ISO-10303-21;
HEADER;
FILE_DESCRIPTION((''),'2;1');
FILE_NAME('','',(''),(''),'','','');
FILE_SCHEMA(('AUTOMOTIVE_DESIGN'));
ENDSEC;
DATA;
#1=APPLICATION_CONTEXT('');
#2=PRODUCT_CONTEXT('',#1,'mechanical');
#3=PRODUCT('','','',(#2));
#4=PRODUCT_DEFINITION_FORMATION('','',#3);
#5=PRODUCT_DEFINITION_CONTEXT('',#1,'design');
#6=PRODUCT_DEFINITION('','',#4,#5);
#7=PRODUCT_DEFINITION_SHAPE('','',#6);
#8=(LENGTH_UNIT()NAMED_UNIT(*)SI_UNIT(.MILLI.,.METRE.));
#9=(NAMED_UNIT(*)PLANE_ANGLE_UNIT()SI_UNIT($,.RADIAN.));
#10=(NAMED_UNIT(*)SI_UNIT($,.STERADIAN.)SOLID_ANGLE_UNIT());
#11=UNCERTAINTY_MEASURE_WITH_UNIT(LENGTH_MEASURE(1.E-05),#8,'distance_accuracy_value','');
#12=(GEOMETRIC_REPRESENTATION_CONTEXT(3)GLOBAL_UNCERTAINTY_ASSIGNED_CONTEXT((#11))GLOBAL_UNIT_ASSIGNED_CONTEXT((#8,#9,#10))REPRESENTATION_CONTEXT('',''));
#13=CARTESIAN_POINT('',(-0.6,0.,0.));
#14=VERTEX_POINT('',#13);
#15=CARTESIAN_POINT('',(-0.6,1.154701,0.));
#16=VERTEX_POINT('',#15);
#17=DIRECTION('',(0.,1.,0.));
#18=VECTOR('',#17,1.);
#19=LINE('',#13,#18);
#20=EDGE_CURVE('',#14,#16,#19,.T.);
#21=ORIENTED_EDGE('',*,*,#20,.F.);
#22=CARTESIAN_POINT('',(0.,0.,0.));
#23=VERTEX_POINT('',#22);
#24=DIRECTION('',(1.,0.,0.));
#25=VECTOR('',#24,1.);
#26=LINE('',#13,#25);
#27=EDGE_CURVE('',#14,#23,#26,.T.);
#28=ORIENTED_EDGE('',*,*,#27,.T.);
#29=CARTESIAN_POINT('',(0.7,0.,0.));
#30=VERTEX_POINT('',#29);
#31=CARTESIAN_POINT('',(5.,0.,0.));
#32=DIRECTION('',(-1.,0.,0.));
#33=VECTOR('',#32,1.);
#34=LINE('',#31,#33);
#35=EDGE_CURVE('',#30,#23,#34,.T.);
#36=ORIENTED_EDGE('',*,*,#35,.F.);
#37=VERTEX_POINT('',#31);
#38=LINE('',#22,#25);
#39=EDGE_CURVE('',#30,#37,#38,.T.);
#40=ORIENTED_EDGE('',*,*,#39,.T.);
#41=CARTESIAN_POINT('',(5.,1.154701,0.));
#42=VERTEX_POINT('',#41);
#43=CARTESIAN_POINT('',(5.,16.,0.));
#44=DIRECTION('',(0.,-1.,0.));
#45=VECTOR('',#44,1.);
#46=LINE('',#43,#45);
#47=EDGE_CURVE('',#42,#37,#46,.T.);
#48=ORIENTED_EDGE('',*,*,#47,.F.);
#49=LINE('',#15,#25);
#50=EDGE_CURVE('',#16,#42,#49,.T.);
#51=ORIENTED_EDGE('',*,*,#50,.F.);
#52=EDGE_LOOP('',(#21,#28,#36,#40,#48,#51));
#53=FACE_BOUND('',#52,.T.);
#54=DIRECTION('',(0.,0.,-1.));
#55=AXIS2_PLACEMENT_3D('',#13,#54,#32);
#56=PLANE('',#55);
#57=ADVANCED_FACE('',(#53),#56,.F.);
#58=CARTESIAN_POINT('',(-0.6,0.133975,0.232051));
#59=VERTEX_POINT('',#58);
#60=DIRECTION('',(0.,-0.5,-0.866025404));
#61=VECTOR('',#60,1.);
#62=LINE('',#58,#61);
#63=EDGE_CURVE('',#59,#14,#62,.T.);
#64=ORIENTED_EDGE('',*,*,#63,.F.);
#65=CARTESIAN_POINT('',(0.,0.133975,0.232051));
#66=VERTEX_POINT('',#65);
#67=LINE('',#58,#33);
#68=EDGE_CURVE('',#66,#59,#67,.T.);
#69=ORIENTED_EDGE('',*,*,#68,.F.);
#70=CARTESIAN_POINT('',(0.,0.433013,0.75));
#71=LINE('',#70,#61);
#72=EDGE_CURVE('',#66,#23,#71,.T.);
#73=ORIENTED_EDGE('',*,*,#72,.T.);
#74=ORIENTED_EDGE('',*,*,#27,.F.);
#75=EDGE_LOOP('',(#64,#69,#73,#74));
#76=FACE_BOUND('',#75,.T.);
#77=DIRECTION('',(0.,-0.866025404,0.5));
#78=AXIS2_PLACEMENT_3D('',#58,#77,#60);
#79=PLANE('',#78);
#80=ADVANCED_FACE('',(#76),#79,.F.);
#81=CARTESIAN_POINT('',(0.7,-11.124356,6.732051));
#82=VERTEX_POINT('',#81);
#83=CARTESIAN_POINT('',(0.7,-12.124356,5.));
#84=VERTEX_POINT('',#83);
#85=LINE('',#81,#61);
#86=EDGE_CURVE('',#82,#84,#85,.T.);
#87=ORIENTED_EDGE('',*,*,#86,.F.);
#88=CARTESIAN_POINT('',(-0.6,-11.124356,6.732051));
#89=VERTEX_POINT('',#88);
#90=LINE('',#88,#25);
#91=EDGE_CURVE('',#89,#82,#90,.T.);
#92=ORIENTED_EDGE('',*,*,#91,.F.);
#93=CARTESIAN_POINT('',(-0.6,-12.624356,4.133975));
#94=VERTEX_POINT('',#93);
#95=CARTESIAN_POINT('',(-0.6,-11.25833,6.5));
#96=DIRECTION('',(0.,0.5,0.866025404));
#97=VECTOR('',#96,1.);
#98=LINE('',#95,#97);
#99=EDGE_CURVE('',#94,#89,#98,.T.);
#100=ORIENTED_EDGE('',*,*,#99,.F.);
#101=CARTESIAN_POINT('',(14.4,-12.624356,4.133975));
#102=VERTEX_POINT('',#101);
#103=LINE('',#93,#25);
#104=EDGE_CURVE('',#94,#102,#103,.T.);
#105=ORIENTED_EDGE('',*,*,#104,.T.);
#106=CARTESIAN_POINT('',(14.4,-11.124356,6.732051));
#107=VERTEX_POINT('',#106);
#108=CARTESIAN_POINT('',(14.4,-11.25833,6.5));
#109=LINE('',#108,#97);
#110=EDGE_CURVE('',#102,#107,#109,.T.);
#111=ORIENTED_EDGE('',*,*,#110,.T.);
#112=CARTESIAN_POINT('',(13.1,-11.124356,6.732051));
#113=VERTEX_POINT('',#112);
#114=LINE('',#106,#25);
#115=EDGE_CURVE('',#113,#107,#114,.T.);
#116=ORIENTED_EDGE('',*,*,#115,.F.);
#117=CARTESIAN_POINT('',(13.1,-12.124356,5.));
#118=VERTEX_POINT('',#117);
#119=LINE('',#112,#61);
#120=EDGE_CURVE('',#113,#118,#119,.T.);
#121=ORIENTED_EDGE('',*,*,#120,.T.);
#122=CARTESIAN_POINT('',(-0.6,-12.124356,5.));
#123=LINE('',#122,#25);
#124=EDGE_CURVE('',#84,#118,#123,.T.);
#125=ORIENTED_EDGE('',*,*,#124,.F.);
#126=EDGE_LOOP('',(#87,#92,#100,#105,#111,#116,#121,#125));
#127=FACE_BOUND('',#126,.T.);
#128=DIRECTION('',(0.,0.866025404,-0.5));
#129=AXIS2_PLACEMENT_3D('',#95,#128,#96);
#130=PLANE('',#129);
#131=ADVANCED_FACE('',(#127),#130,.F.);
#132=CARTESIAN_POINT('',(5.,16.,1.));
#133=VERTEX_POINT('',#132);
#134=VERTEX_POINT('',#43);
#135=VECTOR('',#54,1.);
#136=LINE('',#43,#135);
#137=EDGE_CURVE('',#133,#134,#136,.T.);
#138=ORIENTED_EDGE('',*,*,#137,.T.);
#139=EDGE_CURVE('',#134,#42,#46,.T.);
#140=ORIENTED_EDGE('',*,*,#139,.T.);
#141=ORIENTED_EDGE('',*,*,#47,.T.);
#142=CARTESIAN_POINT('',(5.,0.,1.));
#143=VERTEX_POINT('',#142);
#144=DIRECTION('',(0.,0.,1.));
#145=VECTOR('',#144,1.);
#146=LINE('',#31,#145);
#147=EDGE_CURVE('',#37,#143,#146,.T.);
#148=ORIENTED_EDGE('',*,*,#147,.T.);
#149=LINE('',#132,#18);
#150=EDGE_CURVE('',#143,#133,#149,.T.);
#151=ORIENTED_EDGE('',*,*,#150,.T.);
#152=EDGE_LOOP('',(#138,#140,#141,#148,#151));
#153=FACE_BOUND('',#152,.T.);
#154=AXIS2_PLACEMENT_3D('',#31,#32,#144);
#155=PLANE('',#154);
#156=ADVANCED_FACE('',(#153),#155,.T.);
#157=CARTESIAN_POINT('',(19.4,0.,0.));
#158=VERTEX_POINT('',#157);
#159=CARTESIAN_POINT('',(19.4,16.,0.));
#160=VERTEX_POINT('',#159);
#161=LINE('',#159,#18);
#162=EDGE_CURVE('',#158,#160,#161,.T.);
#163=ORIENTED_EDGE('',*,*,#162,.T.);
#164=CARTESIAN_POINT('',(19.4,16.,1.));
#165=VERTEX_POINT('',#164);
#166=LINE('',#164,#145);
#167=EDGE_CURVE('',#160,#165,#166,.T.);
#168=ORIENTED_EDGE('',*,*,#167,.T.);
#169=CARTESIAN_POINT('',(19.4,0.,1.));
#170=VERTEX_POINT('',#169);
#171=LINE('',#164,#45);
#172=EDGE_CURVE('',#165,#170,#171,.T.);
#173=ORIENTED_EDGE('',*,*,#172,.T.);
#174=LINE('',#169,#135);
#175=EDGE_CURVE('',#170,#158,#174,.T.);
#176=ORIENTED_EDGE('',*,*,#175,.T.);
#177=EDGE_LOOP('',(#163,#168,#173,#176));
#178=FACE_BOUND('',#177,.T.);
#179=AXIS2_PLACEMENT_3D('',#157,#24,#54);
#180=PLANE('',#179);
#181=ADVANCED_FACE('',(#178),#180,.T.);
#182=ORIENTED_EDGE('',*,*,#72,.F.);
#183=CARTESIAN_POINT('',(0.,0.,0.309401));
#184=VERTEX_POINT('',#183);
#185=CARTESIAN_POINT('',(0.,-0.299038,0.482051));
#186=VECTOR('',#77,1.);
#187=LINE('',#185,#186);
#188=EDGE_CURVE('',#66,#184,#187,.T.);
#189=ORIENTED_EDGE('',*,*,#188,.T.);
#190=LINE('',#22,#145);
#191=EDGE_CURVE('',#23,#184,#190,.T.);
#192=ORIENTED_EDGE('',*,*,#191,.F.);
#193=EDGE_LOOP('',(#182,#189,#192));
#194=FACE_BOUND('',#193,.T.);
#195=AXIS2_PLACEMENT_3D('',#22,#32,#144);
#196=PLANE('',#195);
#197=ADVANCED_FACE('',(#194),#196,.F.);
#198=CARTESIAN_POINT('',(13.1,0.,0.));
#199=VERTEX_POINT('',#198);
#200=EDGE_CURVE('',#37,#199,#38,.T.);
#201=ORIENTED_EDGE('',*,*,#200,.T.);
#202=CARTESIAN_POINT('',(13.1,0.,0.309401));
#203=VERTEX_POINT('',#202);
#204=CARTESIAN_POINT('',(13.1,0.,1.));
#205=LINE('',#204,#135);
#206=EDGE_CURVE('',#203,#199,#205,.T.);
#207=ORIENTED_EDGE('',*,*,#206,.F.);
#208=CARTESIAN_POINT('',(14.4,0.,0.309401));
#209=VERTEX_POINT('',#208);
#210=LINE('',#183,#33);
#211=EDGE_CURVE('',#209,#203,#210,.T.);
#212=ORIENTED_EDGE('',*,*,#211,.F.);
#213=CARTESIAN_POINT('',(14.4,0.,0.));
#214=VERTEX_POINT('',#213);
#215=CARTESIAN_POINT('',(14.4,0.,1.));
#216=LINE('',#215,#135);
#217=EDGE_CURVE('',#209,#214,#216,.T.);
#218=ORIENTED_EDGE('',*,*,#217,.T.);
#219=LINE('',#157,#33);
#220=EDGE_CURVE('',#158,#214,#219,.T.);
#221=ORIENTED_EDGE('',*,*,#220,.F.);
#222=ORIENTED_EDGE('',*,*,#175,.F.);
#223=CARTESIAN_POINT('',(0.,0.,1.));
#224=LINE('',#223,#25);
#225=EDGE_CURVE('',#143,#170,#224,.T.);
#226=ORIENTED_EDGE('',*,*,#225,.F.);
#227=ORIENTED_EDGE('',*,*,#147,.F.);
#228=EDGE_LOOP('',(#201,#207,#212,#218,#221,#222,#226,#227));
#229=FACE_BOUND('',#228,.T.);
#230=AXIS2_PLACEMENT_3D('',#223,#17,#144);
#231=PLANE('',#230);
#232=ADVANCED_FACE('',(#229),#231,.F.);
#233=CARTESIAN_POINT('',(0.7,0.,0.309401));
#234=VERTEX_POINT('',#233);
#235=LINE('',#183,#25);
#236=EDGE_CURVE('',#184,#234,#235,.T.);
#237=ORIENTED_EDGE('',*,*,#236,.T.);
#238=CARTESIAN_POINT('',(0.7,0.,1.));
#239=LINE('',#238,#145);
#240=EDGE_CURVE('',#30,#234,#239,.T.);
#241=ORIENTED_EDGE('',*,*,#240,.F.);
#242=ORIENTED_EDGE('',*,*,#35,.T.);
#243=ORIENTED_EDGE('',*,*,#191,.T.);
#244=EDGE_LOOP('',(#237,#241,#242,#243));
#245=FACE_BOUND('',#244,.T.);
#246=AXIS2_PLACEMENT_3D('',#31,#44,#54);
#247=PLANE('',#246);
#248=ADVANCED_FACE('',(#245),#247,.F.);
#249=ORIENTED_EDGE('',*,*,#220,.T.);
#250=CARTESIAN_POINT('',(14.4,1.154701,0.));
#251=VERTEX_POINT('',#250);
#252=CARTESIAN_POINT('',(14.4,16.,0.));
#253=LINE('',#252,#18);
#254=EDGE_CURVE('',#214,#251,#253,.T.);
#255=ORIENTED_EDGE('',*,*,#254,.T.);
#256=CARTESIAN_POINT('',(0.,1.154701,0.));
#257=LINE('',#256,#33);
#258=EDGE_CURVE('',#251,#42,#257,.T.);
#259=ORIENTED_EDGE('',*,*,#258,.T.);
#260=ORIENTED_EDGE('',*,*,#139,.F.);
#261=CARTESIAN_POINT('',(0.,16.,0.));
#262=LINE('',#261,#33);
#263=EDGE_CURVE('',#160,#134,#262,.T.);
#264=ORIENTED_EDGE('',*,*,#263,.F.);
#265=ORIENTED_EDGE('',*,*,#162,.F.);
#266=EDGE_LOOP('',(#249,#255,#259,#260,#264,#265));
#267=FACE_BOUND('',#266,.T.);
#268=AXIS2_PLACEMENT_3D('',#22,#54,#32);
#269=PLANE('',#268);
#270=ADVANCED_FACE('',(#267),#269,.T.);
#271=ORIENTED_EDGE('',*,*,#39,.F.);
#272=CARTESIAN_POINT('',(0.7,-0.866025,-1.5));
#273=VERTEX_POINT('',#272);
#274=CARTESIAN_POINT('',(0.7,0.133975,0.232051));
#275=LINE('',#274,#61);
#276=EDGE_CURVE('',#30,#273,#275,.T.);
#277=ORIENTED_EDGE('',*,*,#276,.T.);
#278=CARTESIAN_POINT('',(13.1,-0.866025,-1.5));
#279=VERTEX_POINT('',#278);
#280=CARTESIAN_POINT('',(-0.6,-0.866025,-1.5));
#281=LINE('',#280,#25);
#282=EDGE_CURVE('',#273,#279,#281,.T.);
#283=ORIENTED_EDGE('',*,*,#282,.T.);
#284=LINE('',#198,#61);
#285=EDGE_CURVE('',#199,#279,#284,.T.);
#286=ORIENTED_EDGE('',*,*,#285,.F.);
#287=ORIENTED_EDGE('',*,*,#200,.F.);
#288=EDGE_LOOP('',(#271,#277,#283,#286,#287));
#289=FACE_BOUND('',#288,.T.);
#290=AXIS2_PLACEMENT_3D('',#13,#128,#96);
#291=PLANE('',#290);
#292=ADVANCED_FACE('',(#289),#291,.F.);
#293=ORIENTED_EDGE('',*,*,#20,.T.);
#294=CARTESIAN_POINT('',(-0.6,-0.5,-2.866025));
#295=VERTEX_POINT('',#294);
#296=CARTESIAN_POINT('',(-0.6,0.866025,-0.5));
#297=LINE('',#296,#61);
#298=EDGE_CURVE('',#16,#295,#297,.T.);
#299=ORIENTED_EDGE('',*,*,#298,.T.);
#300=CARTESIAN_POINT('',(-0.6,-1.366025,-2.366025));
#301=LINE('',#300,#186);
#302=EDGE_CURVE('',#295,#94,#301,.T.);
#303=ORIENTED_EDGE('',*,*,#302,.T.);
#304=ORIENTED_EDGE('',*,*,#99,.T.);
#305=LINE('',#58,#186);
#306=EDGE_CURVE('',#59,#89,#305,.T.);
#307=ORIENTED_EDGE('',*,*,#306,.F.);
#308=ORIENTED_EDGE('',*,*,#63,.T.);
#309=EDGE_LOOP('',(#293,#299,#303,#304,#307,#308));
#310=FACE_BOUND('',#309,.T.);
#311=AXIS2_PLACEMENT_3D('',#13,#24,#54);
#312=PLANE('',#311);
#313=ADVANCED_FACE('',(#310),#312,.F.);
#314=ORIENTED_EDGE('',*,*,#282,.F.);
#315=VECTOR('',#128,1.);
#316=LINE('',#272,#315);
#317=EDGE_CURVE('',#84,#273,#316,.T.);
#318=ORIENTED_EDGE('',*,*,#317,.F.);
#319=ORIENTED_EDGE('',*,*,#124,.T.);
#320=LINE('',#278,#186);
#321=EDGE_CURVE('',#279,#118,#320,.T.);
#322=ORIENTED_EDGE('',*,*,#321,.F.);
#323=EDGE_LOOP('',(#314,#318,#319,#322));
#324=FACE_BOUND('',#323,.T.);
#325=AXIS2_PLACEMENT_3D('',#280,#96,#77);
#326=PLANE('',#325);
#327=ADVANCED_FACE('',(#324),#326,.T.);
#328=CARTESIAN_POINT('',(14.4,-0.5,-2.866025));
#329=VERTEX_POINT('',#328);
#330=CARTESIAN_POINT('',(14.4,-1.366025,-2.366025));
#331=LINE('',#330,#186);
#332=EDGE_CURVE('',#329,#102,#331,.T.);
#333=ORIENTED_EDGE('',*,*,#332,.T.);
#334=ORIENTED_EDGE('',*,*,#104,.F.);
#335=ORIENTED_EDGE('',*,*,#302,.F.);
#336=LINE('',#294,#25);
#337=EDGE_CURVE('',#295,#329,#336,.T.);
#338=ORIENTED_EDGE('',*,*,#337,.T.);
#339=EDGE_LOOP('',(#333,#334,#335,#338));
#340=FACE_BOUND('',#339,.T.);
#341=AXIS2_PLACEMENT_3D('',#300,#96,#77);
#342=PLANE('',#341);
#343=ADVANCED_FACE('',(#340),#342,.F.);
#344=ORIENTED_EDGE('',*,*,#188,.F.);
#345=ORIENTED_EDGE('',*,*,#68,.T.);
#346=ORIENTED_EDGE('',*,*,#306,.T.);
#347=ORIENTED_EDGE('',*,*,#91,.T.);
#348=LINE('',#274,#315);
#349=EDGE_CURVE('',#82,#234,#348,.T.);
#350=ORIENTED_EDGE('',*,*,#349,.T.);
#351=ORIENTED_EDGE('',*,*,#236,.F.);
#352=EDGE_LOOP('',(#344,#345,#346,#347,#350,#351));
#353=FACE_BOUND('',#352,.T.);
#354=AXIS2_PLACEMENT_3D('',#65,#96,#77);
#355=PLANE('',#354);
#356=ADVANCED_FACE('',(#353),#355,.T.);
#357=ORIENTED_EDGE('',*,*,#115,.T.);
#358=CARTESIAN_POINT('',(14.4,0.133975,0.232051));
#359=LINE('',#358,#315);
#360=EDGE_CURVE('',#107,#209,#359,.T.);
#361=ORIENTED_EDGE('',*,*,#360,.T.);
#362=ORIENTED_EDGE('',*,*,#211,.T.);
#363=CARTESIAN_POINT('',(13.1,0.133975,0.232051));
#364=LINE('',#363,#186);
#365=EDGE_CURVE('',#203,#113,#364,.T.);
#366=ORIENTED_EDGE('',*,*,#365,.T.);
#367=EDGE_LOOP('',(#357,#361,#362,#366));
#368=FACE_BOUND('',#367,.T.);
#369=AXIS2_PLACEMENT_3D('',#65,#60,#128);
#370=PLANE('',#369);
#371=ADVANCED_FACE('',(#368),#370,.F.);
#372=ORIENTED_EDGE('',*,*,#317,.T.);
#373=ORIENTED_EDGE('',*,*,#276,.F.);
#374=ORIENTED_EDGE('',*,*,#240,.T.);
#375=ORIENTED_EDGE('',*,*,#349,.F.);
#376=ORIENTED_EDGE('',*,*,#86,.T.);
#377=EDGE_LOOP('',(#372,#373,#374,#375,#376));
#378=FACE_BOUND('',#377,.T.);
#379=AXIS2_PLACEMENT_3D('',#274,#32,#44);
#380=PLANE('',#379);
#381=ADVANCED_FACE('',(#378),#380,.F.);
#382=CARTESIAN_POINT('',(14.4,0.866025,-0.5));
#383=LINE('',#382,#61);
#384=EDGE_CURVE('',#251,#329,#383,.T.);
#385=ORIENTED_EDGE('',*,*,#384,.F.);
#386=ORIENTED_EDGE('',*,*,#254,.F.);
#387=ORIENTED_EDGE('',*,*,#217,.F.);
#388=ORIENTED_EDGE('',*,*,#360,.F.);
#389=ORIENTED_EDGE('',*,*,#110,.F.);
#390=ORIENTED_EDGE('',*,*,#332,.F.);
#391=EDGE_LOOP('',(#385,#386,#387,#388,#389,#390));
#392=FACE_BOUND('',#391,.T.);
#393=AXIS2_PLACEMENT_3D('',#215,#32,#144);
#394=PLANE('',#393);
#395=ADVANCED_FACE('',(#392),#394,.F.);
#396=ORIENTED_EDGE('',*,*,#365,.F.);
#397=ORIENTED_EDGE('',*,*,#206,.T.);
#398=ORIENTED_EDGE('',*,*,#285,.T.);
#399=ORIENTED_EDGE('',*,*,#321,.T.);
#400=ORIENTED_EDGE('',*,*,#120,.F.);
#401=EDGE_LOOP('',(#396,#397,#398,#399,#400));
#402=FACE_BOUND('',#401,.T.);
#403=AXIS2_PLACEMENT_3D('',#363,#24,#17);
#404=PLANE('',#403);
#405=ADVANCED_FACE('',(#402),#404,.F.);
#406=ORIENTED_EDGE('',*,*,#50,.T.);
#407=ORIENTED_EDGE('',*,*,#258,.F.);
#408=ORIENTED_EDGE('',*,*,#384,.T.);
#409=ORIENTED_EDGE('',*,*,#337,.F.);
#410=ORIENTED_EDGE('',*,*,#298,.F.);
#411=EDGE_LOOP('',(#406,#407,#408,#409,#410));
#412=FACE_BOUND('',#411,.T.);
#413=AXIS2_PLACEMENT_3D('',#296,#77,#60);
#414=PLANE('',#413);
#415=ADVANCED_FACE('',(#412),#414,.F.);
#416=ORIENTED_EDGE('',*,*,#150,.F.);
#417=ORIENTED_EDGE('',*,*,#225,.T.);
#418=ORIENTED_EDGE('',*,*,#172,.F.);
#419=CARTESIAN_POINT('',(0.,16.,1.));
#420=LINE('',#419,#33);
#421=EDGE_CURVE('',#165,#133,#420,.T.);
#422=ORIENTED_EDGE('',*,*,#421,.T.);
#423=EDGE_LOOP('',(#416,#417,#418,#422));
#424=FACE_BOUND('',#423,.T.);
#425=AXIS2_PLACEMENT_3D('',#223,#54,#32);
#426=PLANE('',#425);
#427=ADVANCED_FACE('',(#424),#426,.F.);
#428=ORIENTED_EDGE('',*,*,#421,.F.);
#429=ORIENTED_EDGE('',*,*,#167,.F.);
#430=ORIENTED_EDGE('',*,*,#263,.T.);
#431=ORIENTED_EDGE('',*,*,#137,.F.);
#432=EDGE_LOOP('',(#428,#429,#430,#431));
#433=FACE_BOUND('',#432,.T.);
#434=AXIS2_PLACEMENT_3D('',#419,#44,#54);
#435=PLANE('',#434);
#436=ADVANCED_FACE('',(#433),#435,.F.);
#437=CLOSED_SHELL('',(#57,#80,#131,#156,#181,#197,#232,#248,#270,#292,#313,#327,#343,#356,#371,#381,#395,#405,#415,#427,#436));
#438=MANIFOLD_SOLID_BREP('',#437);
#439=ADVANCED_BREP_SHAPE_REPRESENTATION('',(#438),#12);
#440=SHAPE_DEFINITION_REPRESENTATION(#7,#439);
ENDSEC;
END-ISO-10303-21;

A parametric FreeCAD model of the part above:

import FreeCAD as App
import Part
import Sketcher
from FreeCAD import Vector
Q = App.Units.Quantity


def add_polygon(sketch, points):
    """Adds a closed chain of lines whose ends are joined by coincident constraints."""
    first, n = sketch.GeometryCount, len(points)
    for a, b in zip(points, points[1:] + points[:1]):
        sketch.addGeometry(Part.LineSegment(App.Vector(*a, 0), App.Vector(*b, 0)), False)
    for i in range(n):
        sketch.addConstraint(Sketcher.Constraint("Coincident", first + i, 2, first + (i + 1) % n, 1))

doc = App.newDocument("Part")
body = doc.addObject("PartDesign::Body", "Body")

sketch1 = body.newObject("Sketcher::SketchObject", "Sketch")
sketch1.AttachmentSupport = (doc.getObject("XY_Plane"), [""])
sketch1.MapMode = "FlatFace"
add_polygon(sketch1, [(0, 16), (0, 0), (14.4, 0), (14.4, 16)])
sketch1.addConstraint(Sketcher.Constraint("Vertical", 0))
sketch1.addConstraint(Sketcher.Constraint("Horizontal", 1))
sketch1.addConstraint(Sketcher.Constraint("Vertical", 2))
sketch1.addConstraint(Sketcher.Constraint("Horizontal", 3))
sketch1.addConstraint(Sketcher.Constraint("Coincident", 0, 2, -1, 1))
sketch1.addConstraint(Sketcher.Constraint("DistanceY", 0, 2, 0, 1, 16.0))
sketch1.addConstraint(Sketcher.Constraint("DistanceX", 1, 1, 1, 2, 14.4))
pad1 = body.newObject("PartDesign::Pad", "Pad")
pad1.Profile = sketch1
pad1.Length = 1

sketch2 = body.newObject("Sketcher::SketchObject", "Sketch001")
sketch2.AttachmentSupport = (doc.getObject("YZ_Plane"), [""])
sketch2.MapMode = "FlatFace"
sketch2.AttachmentOffset = App.Placement(Vector(0, 0, 14.4), App.Rotation())
add_polygon(sketch2, [(1.154701, 0), (0, 0), (-0.866025, -1.5), (-12.124356, 5), (-12.624356, 4.133975), (-0.5, -2.866025)])
sketch2.addConstraint(Sketcher.Constraint("Horizontal", 0))
sketch2.addConstraint(Sketcher.Constraint("Coincident", 0, 2, -1, 1))
sketch2.addConstraint(Sketcher.Constraint("Perpendicular", 1, 2))
sketch2.addConstraint(Sketcher.Constraint("Perpendicular", 2, 3))
sketch2.addConstraint(Sketcher.Constraint("Perpendicular", 3, 4))
sketch2.addConstraint(Sketcher.Constraint("Perpendicular", 4, 5))
sketch2.addConstraint(Sketcher.Constraint("Angle", 1, Q("-120 deg")))
sketch2.addConstraint(Sketcher.Constraint("Distance", 2, 13.0))
sketch2.addConstraint(Sketcher.Constraint("Distance", 3, 1.0))
sketch2.addConstraint(Sketcher.Constraint("Distance", 4, 14.0))
sketch2.addConstraint(Sketcher.Constraint("DistanceY", -1, 1, 2, 2, 5.0))
pad2 = body.newObject("PartDesign::Pad", "Pad001")
pad2.Profile = sketch2
pad2.Length = 15
pad2.Reversed = True

sketch3 = body.newObject("Sketcher::SketchObject", "Sketch002")
sketch3.Placement = App.Placement(Vector(0, -0.866025, -1.5), App.Rotation(Vector(1, 0, 0), Vector(0, 0.866025404, -0.5), Vector(0, 0.5, 0.866025404), "ZXY"))
add_polygon(sketch3, [(13.1, 0), (13.1, -13), (14.4, -13), (14.4, 0)])
add_polygon(sketch3, [(-0.6, 0), (-0.6, -13), (0.7, -13), (0.7, 0)])
sketch3.addConstraint(Sketcher.Constraint("Vertical", 0))
sketch3.addConstraint(Sketcher.Constraint("Horizontal", 1))
sketch3.addConstraint(Sketcher.Constraint("Vertical", 2))
sketch3.addConstraint(Sketcher.Constraint("Horizontal", 3))
sketch3.addConstraint(Sketcher.Constraint("Vertical", 4))
sketch3.addConstraint(Sketcher.Constraint("Horizontal", 5))
sketch3.addConstraint(Sketcher.Constraint("Vertical", 6))
sketch3.addConstraint(Sketcher.Constraint("Horizontal", 7))
sketch3.addConstraint(Sketcher.Constraint("PointOnObject", 2, 2, -1))
sketch3.addConstraint(Sketcher.Constraint("PointOnObject", 6, 2, -1))
sketch3.addConstraint(Sketcher.Constraint("Horizontal", 1, 2, 4, 2))
sketch3.addConstraint(Sketcher.Constraint("Equal", 3, 5))
sketch3.addConstraint(Sketcher.Constraint("DistanceY", 0, 2, 0, 1, 13.0))
sketch3.addConstraint(Sketcher.Constraint("DistanceX", 1, 1, 1, 2, 1.3))
sketch3.addConstraint(Sketcher.Constraint("DistanceX", 4, 2, 1, 2, 15.0))
sketch3.addConstraint(Sketcher.Constraint("DistanceX", -1, 1, 0, 2, 13.1))
pad3 = body.newObject("PartDesign::Pad", "Pad002")
pad3.Profile = sketch3
pad3.Length = 2

sketch4 = body.newObject("Sketcher::SketchObject", "Sketch003")
sketch4.AttachmentSupport = (doc.getObject("YZ_Plane"), [""])
sketch4.MapMode = "FlatFace"
sketch4.AttachmentOffset = App.Placement(Vector(0, 0, 14.4), App.Rotation())
add_polygon(sketch4, [(16, 1), (0, 1), (0, 0), (16, 0)])
sketch4.addConstraint(Sketcher.Constraint("Horizontal", 0))
sketch4.addConstraint(Sketcher.Constraint("Vertical", 1))
sketch4.addConstraint(Sketcher.Constraint("Horizontal", 2))
sketch4.addConstraint(Sketcher.Constraint("Vertical", 3))
sketch4.addConstraint(Sketcher.Constraint("Coincident", 1, 2, -1, 1))
sketch4.addConstraint(Sketcher.Constraint("DistanceX", 0, 2, 0, 1, 16.0))
sketch4.addConstraint(Sketcher.Constraint("DistanceY", 1, 2, 1, 1, 1.0))
pad4 = body.newObject("PartDesign::Pad", "Pad003")
pad4.Profile = sketch4
pad4.Length = 5

sketch5 = body.newObject("Sketcher::SketchObject", "Sketch004")
sketch5.AttachmentSupport = (doc.getObject("YZ_Plane"), [""])
sketch5.MapMode = "FlatFace"
add_polygon(sketch5, [(16, 0), (0, 0), (0, 1), (16, 1)])
sketch5.addConstraint(Sketcher.Constraint("Horizontal", 0))
sketch5.addConstraint(Sketcher.Constraint("Vertical", 1))
sketch5.addConstraint(Sketcher.Constraint("Horizontal", 2))
sketch5.addConstraint(Sketcher.Constraint("Vertical", 3))
sketch5.addConstraint(Sketcher.Constraint("Coincident", 0, 2, -1, 1))
sketch5.addConstraint(Sketcher.Constraint("DistanceX", 0, 2, 0, 1, 16.0))
sketch5.addConstraint(Sketcher.Constraint("DistanceY", 1, 1, 1, 2, 1.0))
pocket1 = body.newObject("PartDesign::Pocket", "Pocket")
pocket1.Profile = sketch5
pocket1.Length = 5
pocket1.Reversed = True

doc.recompute()
